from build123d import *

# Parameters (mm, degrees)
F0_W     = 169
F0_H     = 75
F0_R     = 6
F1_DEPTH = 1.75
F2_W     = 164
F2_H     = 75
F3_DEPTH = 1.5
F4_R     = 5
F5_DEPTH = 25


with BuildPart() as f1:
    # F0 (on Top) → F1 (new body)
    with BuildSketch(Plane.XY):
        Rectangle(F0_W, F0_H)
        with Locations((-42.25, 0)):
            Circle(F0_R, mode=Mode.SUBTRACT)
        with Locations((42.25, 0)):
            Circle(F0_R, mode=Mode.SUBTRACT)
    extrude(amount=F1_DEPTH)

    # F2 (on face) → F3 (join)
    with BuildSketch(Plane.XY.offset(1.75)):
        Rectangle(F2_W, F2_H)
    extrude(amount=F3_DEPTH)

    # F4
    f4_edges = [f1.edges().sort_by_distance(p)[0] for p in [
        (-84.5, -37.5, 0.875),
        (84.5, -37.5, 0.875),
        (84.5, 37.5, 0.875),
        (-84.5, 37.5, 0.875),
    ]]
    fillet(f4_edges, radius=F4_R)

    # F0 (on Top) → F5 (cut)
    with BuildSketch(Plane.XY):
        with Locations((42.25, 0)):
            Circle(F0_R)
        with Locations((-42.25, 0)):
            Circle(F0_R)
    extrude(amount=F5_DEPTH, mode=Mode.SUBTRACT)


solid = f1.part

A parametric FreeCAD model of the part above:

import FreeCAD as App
import Part
import Sketcher


def edges_at(feature, points):
    """Names of the edges that pass closest to the given points."""
    edges = feature.Shape.Edges
    near = lambda p: min(range(len(edges)), key=lambda i: edges[i].distToShape(Part.Vertex(*p))[0])
    return sorted({f"Edge{near(p) + 1}" for p in points})

doc = App.newDocument("Part")
params = doc.addObject("Spreadsheet::Sheet", "Params")
for row, (alias, value) in enumerate([
    ("sketch1_diameter", "12 mm"),
    ("sketch1_width", "169 mm"),
    ("sketch1_height", "75 mm"),
    ("pad1_length", "1.75 mm"),
    ("sketch2_width", "164 mm"),
    ("sketch2_height", "75 mm"),
    ("pad2_length", "1.5 mm"),
    ("fillet_radius", "5 mm"),
    ("sketch3_diameter", "12 mm"),
    ("pocket1_length", "25 mm"),
], start=1):
    params.set(f"A{row}", alias)
    params.set(f"B{row}", "=" + value)
    params.setAlias(f"B{row}", alias)

body = doc.addObject("PartDesign::Body", "Body")

sketch1 = body.newObject("Sketcher::SketchObject", "Sketch")
sketch1.AttachmentSupport = (doc.getObject("XY_Plane"), [""])
sketch1.MapMode = "FlatFace"
sketch1.addGeometry([
    Part.LineSegment(App.Vector(-84, 38, 0), App.Vector(-84, -38, 0)),
    Part.LineSegment(App.Vector(-84, -38, 0), App.Vector(84, -38, 0)),
    Part.LineSegment(App.Vector(84, -38, 0), App.Vector(84, 38, 0)),
    Part.LineSegment(App.Vector(84, 38, 0), App.Vector(-84, 38, 0)),
    Part.Circle(App.Vector(-42, 0, 0), App.Vector(0, 0, 1), 6),
    Part.Circle(App.Vector(42, 0, 0), App.Vector(0, 0, 1), 6),
], False)
sketch1.addConstraint([
    Sketcher.Constraint("Coincident", 0, 2, 1, 1),
    Sketcher.Constraint("Coincident", 1, 2, 2, 1),
    Sketcher.Constraint("Coincident", 2, 2, 3, 1),
    Sketcher.Constraint("Coincident", 3, 2, 0, 1),
    Sketcher.Constraint("Vertical", 0),
    Sketcher.Constraint("Horizontal", 1),
    Sketcher.Constraint("Vertical", 2),
    Sketcher.Constraint("Horizontal", 3),
    Sketcher.Constraint("Equal", 4, 5),
    Sketcher.Constraint("Symmetric", 4, 3, 5, 3, -1, 1),
    Sketcher.Constraint("Symmetric", 0, 2, 2, 2, -1, 1),
    Sketcher.Constraint("PointOnObject", 4, 3, -1),
    Sketcher.Constraint("Diameter", 4, 12.0),
    Sketcher.Constraint("DistanceX", 1, 1, 1, 2, 169.0),
    Sketcher.Constraint("DistanceY", 0, 2, 0, 1, 75.0),
    Sketcher.Constraint("DistanceX", 4, 3, 5, 3, 84.5),
])
sketch1.setExpression("Constraints[12]", "Params.sketch1_diameter")
sketch1.setExpression("Constraints[13]", "Params.sketch1_width")
sketch1.setExpression("Constraints[14]", "Params.sketch1_height")
pad1 = body.newObject("PartDesign::Pad", "Pad")
pad1.Profile = sketch1
pad1.setExpression("Length", "Params.pad1_length")

sketch2 = body.newObject("Sketcher::SketchObject", "Sketch001")
sketch2.AttachmentSupport = (doc.getObject("XY_Plane"), [""])
sketch2.MapMode = "FlatFace"
sketch2.AttachmentOffset = App.Placement(App.Vector(0, 0, 1.75), App.Rotation())
sketch2.addGeometry([
    Part.LineSegment(App.Vector(-82, 38, 0), App.Vector(-82, -38, 0)),
    Part.LineSegment(App.Vector(-82, -38, 0), App.Vector(82, -38, 0)),
    Part.LineSegment(App.Vector(82, -38, 0), App.Vector(82, 38, 0)),
    Part.LineSegment(App.Vector(82, 38, 0), App.Vector(-82, 38, 0)),
], False)
sketch2.addConstraint([
    Sketcher.Constraint("Coincident", 0, 2, 1, 1),
    Sketcher.Constraint("Coincident", 1, 2, 2, 1),
    Sketcher.Constraint("Coincident", 2, 2, 3, 1),
    Sketcher.Constraint("Coincident", 3, 2, 0, 1),
    Sketcher.Constraint("Vertical", 0),
    Sketcher.Constraint("Horizontal", 1),
    Sketcher.Constraint("Vertical", 2),
    Sketcher.Constraint("Horizontal", 3),
    Sketcher.Constraint("Symmetric", 0, 2, 2, 2, -1, 1),
    Sketcher.Constraint("DistanceX", 1, 1, 1, 2, 164.0),
    Sketcher.Constraint("DistanceY", 0, 2, 0, 1, 75.0),
])
sketch2.setExpression("Constraints[9]", "Params.sketch2_width")
sketch2.setExpression("Constraints[10]", "Params.sketch2_height")
pad2 = body.newObject("PartDesign::Pad", "Pad001")
pad2.Profile = sketch2
pad2.setExpression("Length", "Params.pad2_length")
doc.recompute()

fillet = body.newObject("PartDesign::Fillet", "Fillet")
fillet.Base = (pad2, edges_at(pad2, [
    (-84.5, -37.5, 0.875),
    (84.5, -37.5, 0.875),
    (84.5, 37.5, 0.875),
    (-84.5, 37.5, 0.875),
]))
fillet.setExpression("Radius", "Params.fillet_radius")

sketch3 = body.newObject("Sketcher::SketchObject", "Sketch002")
sketch3.AttachmentSupport = (doc.getObject("XY_Plane"), [""])
sketch3.MapMode = "FlatFace"
sketch3.addGeometry([
    Part.Circle(App.Vector(42, 0, 0), App.Vector(0, 0, 1), 6),
    Part.Circle(App.Vector(-42, 0, 0), App.Vector(0, 0, 1), 6),
], False)
sketch3.addConstraint([
    Sketcher.Constraint("Equal", 0, 1),
    Sketcher.Constraint("Symmetric", 0, 3, 1, 3, -1, 1),
    Sketcher.Constraint("PointOnObject", 0, 3, -1),
    Sketcher.Constraint("Diameter", 0, 12.0),
    Sketcher.Constraint("DistanceX", 1, 3, 0, 3, 84.5),
])
sketch3.setExpression("Constraints[3]", "Params.sketch3_diameter")
pocket1 = body.newObject("PartDesign::Pocket", "Pocket")
pocket1.Profile = sketch3
pocket1.setExpression("Length", "Params.pocket1_length")
pocket1.Reversed = True

doc.recompute()
